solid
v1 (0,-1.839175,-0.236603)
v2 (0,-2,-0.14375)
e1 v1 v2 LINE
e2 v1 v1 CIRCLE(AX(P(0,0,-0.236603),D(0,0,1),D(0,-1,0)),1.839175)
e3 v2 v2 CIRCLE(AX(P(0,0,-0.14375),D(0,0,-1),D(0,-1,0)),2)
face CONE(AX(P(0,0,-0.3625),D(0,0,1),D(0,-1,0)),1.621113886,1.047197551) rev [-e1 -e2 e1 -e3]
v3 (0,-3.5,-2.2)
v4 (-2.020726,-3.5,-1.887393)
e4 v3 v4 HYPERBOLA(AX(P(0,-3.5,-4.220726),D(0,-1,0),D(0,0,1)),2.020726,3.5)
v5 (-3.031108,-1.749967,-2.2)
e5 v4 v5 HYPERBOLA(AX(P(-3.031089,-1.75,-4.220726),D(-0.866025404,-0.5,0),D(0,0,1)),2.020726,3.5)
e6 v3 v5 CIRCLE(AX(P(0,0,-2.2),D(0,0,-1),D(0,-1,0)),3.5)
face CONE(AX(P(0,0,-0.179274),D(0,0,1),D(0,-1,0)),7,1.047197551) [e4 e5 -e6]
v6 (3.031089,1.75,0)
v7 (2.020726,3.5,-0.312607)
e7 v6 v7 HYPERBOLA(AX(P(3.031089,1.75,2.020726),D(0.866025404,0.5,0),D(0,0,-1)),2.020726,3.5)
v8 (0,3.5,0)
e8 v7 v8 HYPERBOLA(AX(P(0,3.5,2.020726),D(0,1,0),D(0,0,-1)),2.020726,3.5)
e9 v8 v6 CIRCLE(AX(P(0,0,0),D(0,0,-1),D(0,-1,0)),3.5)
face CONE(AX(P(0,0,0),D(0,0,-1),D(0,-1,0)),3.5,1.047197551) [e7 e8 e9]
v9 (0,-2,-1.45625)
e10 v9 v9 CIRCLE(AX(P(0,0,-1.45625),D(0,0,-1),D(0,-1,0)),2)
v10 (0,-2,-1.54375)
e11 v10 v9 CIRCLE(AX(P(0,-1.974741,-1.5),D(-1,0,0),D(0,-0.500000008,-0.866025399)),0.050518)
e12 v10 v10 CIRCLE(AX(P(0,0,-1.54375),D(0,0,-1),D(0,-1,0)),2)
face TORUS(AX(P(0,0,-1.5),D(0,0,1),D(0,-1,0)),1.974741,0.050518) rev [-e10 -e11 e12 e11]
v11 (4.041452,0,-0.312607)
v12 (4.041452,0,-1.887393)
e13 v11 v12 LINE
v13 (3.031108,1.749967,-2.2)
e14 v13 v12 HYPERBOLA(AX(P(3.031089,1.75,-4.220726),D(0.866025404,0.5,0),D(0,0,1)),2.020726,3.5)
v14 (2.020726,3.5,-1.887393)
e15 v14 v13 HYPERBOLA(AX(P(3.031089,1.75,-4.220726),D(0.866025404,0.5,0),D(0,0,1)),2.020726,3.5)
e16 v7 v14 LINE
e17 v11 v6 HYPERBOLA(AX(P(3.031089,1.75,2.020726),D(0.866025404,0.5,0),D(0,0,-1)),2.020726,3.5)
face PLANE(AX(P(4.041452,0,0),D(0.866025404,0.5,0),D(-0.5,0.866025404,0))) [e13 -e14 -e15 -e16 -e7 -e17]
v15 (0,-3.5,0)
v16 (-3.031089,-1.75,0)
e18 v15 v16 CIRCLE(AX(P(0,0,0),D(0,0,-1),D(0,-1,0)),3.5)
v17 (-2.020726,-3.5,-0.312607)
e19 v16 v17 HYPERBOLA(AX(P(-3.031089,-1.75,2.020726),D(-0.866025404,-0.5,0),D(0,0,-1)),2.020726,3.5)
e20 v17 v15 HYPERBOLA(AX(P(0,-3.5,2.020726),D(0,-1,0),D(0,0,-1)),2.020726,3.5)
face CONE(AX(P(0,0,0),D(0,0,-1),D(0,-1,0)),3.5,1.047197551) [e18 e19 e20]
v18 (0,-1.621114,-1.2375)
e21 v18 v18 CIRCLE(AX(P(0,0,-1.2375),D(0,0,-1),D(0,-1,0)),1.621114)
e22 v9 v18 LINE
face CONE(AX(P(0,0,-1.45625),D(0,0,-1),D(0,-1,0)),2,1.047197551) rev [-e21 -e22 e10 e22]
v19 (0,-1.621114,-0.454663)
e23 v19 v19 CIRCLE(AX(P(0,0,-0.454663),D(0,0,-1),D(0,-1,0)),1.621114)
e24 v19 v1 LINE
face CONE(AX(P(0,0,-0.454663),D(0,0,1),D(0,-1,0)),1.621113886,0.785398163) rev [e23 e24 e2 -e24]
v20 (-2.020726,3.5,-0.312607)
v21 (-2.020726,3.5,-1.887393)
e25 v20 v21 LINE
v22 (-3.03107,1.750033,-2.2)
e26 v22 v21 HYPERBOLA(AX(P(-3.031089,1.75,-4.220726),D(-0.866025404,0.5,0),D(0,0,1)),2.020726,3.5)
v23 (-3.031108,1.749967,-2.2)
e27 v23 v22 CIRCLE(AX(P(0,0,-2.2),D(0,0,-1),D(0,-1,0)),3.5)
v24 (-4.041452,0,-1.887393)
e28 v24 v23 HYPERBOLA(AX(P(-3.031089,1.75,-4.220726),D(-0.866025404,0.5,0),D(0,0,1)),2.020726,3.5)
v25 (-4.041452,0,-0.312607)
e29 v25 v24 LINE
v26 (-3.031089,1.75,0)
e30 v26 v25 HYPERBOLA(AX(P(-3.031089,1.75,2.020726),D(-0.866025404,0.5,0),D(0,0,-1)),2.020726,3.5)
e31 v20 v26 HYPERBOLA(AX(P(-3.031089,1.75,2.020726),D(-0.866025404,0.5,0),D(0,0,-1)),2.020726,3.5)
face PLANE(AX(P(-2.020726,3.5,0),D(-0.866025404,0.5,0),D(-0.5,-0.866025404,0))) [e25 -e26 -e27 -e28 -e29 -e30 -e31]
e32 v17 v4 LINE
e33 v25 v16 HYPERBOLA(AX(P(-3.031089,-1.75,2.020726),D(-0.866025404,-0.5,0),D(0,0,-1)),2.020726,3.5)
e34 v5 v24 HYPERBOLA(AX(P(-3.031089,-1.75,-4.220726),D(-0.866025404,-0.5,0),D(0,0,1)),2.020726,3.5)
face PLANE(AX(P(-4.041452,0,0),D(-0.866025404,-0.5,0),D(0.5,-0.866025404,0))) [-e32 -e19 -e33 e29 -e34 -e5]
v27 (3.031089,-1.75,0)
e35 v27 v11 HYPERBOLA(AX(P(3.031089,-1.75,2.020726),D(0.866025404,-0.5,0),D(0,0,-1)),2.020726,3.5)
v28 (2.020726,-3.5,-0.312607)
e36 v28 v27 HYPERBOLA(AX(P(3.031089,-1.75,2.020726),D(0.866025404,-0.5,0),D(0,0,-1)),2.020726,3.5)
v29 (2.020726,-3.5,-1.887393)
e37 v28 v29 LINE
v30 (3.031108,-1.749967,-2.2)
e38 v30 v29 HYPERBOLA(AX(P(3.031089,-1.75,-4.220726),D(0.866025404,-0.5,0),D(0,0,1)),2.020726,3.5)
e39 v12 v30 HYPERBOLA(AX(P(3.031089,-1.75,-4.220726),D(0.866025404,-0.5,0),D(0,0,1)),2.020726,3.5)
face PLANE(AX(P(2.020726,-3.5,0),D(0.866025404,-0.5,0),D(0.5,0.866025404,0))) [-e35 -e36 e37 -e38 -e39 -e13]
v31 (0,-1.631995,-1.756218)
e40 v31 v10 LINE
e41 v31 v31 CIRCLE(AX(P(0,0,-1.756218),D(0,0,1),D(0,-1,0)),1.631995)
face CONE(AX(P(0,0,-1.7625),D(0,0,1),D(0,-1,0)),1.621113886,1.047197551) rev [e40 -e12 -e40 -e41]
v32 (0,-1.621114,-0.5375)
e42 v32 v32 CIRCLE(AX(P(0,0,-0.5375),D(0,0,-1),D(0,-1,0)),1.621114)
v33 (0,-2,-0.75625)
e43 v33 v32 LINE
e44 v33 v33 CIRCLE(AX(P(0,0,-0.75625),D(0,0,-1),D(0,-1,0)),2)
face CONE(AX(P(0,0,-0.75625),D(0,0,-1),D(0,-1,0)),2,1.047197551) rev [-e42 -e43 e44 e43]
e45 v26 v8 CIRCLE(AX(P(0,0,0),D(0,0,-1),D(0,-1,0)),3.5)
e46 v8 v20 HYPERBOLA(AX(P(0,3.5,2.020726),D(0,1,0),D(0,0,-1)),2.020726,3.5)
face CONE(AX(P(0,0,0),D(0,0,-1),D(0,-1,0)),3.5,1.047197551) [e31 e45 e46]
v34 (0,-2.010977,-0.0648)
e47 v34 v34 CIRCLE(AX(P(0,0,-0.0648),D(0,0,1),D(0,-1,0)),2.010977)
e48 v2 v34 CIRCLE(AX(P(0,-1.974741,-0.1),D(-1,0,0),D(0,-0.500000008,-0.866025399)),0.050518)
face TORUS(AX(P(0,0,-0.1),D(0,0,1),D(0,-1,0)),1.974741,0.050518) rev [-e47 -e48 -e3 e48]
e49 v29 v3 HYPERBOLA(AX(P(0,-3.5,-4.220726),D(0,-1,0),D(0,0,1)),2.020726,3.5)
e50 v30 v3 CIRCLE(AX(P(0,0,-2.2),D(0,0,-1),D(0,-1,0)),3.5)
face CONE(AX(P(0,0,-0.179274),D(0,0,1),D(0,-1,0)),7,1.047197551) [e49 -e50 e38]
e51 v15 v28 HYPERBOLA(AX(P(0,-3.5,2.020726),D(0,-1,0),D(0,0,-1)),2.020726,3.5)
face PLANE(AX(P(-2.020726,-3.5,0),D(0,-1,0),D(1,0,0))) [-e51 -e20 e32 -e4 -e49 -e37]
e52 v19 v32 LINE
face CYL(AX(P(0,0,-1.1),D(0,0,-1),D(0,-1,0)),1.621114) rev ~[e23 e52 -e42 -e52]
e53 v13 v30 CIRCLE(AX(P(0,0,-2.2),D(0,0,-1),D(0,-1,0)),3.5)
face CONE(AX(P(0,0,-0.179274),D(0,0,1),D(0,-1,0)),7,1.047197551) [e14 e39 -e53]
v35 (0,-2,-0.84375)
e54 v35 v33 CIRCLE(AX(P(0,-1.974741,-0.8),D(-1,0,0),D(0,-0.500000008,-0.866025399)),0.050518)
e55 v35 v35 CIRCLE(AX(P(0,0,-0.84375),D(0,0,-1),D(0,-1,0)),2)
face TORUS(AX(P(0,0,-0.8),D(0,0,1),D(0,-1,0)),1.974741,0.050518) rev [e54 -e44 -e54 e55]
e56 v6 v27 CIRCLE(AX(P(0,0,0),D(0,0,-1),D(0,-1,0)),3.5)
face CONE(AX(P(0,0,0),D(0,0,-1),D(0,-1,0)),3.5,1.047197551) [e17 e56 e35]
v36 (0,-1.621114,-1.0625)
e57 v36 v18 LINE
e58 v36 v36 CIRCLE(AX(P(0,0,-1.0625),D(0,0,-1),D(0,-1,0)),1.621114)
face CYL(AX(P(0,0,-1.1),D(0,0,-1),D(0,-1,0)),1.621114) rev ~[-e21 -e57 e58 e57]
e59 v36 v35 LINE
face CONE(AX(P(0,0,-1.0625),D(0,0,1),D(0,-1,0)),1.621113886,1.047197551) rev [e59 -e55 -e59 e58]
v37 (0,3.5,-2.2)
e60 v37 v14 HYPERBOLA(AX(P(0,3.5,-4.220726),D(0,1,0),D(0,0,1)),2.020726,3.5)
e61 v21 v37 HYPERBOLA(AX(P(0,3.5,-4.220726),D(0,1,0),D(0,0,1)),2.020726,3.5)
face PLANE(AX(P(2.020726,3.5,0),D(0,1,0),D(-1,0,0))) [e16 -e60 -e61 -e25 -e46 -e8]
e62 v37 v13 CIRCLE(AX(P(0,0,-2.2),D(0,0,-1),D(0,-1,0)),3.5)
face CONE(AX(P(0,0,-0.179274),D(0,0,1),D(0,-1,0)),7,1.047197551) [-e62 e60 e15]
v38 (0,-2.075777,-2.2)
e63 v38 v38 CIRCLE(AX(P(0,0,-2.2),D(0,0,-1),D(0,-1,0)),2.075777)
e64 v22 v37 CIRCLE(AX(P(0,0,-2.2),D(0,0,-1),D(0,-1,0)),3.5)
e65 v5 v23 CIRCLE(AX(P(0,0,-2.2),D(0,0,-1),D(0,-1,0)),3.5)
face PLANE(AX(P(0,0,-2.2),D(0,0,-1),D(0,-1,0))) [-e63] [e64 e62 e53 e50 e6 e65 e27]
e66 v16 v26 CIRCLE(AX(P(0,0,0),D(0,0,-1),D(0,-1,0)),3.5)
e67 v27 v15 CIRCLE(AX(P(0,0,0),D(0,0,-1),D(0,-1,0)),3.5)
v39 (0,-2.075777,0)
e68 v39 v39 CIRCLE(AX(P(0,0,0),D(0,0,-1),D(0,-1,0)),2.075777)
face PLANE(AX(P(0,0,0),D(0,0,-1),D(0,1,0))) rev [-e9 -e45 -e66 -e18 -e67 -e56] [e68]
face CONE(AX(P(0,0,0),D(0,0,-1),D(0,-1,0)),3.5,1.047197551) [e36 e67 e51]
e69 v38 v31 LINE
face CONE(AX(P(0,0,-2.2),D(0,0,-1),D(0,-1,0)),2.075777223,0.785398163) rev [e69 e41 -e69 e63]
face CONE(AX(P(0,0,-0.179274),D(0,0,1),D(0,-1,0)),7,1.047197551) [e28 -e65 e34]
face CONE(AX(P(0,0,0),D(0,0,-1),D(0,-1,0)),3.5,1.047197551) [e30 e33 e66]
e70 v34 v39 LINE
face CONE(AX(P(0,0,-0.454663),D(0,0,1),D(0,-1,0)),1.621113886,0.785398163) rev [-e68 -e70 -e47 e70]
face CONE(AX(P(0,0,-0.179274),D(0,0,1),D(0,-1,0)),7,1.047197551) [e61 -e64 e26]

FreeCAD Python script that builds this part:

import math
import FreeCAD as App
import Part
import Sketcher
Q = App.Units.Quantity


def add_polygon(sketch, points):
    """Adds a closed chain of lines whose ends are joined by coincident constraints."""
    first, n = sketch.GeometryCount, len(points)
    for a, b in zip(points, points[1:] + points[:1]):
        sketch.addGeometry(Part.LineSegment(App.Vector(*a, 0), App.Vector(*b, 0)), False)
    for i in range(n):
        sketch.addConstraint(Sketcher.Constraint("Coincident", first + i, 2, first + (i + 1) % n, 1))

doc = App.newDocument("Part")
body = doc.addObject("PartDesign::Body", "Body")

# Sketch on YZ plane
sketch1 = body.newObject("Sketcher::SketchObject", "Sketch")
sketch1.AttachmentSupport = (doc.getObject("YZ_Plane"), [""])
sketch1.MapMode = "FlatFace"
add_polygon(sketch1, [(7, 0), (0, 0), (0, -2.2), (7, -2.2)])  # lines 0-3
sketch1.addConstraint(Sketcher.Constraint("Horizontal", 0))
sketch1.addConstraint(Sketcher.Constraint("Vertical", 1))
sketch1.addConstraint(Sketcher.Constraint("Horizontal", 2))
sketch1.addConstraint(Sketcher.Constraint("Vertical", 3))
sketch1.addConstraint(Sketcher.Constraint("Coincident", 0, 2, -1, 1))
sketch1.addConstraint(Sketcher.Constraint("DistanceX", 0, 2, 0, 1, 7.0))
sketch1.addConstraint(Sketcher.Constraint("DistanceY", 1, 2, 1, 1, 2.2))
revolution = body.newObject("PartDesign::Revolution", "Revolution")
revolution.Profile = sketch1
revolution.ReferenceAxis = (sketch1, ["V_Axis"])
revolution.Angle = 360

# Sketch on YZ plane
sketch2 = body.newObject("Sketcher::SketchObject", "Sketch001")
sketch2.AttachmentSupport = (doc.getObject("YZ_Plane"), [""])
sketch2.MapMode = "FlatFace"
add_polygon(sketch2, [(-7, 0), (-7, -2), (-3.5, 0)])  # lines 0-2
sketch2.addConstraint(Sketcher.Constraint("Vertical", 0))
sketch2.addConstraint(Sketcher.Constraint("Horizontal", 2))
sketch2.addConstraint(Sketcher.Constraint("PointOnObject", 1, 2, -1))
sketch2.addConstraint(Sketcher.Constraint("Angle", 1, Q("30 deg")))
sketch2.addConstraint(Sketcher.Constraint("DistanceX", 2, 2, 2, 1, 3.5))
sketch2.addConstraint(Sketcher.Constraint("DistanceX", 0, 2, -1, 1, 7.0))
groove = body.newObject("PartDesign::Groove", "Groove")
groove.Profile = sketch2
groove.ReferenceAxis = (sketch2, ["V_Axis"])
groove.Angle = 360

# Sketch on YZ plane
sketch3 = body.newObject("Sketcher::SketchObject", "Sketch002")
sketch3.AttachmentSupport = (doc.getObject("YZ_Plane"), [""])
sketch3.MapMode = "FlatFace"
add_polygon(sketch3, [(-7, -0.2), (-7, -2.2), (-3.5, -2.2)])  # lines 0-2
sketch3.addConstraint(Sketcher.Constraint("Vertical", 0))
sketch3.addConstraint(Sketcher.Constraint("Horizontal", 1))
sketch3.addConstraint(Sketcher.Constraint("Angle", 2, Q("150 deg")))
sketch3.addConstraint(Sketcher.Constraint("DistanceX", 1, 1, 1, 2, 3.5))
sketch3.addConstraint(Sketcher.Constraint("DistanceX", 0, 2, -1, 1, 7.0))
sketch3.addConstraint(Sketcher.Constraint("DistanceY", 0, 2, -1, 1, 2.2))
groove2 = body.newObject("PartDesign::Groove", "Groove001")
groove2.Profile = sketch3
groove2.ReferenceAxis = (sketch3, ["V_Axis"])
groove2.Angle = 360

# Sketch on YZ plane
sketch4 = body.newObject("Sketcher::SketchObject", "Sketch003")
sketch4.AttachmentSupport = (doc.getObject("YZ_Plane"), [""])
sketch4.MapMode = "FlatFace"
add_polygon(sketch4, [(2, 0), (0, 0), (0, -2.2), (2, -2.2)])  # lines 0-3
sketch4.addConstraint(Sketcher.Constraint("Horizontal", 0))
sketch4.addConstraint(Sketcher.Constraint("Vertical", 1))
sketch4.addConstraint(Sketcher.Constraint("Horizontal", 2))
sketch4.addConstraint(Sketcher.Constraint("Vertical", 3))
sketch4.addConstraint(Sketcher.Constraint("Coincident", 0, 2, -1, 1))
sketch4.addConstraint(Sketcher.Constraint("DistanceX", 0, 2, 0, 1, 2.0))
sketch4.addConstraint(Sketcher.Constraint("DistanceY", 1, 2, 1, 1, 2.2))
groove3 = body.newObject("PartDesign::Groove", "Groove002")
groove3.Profile = sketch4
groove3.ReferenceAxis = (sketch4, ["V_Axis"])
groove3.Angle = 360

# Sketch on YZ plane
sketch5 = body.newObject("Sketcher::SketchObject", "Sketch004")
sketch5.AttachmentSupport = (doc.getObject("YZ_Plane"), [""])
sketch5.MapMode = "FlatFace"
add_polygon(sketch5, [(-1.62, 0), (-2.08, 0), (-2.08, -2.2), (-1.62, -2.2)])  # lines 0-3
sketch5.addConstraint(Sketcher.Constraint("Horizontal", 0))
sketch5.addConstraint(Sketcher.Constraint("Vertical", 1))
sketch5.addConstraint(Sketcher.Constraint("Horizontal", 2))
sketch5.addConstraint(Sketcher.Constraint("Vertical", 3))
sketch5.addConstraint(Sketcher.Constraint("PointOnObject", 0, 2, -1))
sketch5.addConstraint(Sketcher.Constraint("DistanceY", 1, 2, 1, 1, 2.2))
sketch5.addConstraint(Sketcher.Constraint("DistanceX", 0, 2, 0, 1, 0.454663))
sketch5.addConstraint(Sketcher.Constraint("DistanceX", 0, 2, -1, 1, 2.075777))
revolution2 = body.newObject("PartDesign::Revolution", "Revolution001")
revolution2.Profile = sketch5
revolution2.ReferenceAxis = (sketch5, ["V_Axis"])
revolution2.Angle = 360

# Sketch on YZ plane
sketch6 = body.newObject("Sketcher::SketchObject", "Sketch005")
sketch6.AttachmentSupport = (doc.getObject("YZ_Plane"), [""])
sketch6.MapMode = "FlatFace"
sketch6.addGeometry(Part.LineSegment(App.Vector(-1.62, -1.94, 0), App.Vector(-2, -2.16, 0)), False)
sketch6.addGeometry(Part.ArcOfCircle(Part.Circle(App.Vector(-1.97, -2.2, 0), App.Vector(0, 0, 1), 0.05), math.radians(120), math.radians(240)), False)
sketch6.addGeometry(Part.LineSegment(App.Vector(-2, -2.24, 0), App.Vector(-1.62, -2.46, 0)), False)
sketch6.addGeometry(Part.LineSegment(App.Vector(-1.62, -2.46, 0), App.Vector(-1.62, -1.94, 0)), False)
sketch6.addConstraint(Sketcher.Constraint("Tangent", 0, 2, 1, 1))
sketch6.addConstraint(Sketcher.Constraint("Tangent", 1, 2, 2, 1))
sketch6.addConstraint(Sketcher.Constraint("Coincident", 2, 2, 3, 1))
sketch6.addConstraint(Sketcher.Constraint("Coincident", 3, 2, 0, 1))
sketch6.addConstraint(Sketcher.Constraint("Vertical", 3))
sketch6.addConstraint(Sketcher.Constraint("Vertical", 0, 2, 1, 2))
sketch6.addConstraint(Sketcher.Constraint("Angle", 0, Q("-150 deg")))
sketch6.addConstraint(Sketcher.Constraint("DistanceX", 0, 2, -1, 1, 2.0))
sketch6.addConstraint(Sketcher.Constraint("DistanceY", 1, 3, -1, 1, 2.2))
sketch6.addConstraint(Sketcher.Constraint("DistanceY", 3, 1, 3, 2, 0.525))
sketch6.addConstraint(Sketcher.Constraint("Radius", 1, 0.050518))
groove4 = body.newObject("PartDesign::Groove", "Groove003")
groove4.Profile = sketch6
groove4.ReferenceAxis = (sketch6, ["V_Axis"])
groove4.Angle = 360
doc.recompute()

linearpattern = body.newObject("PartDesign::LinearPattern", "LinearPattern")
linearpattern.Originals = [groove4]
linearpattern.Direction = (doc.getObject("Z_Axis"), [""])
linearpattern.Mode = "offset"
linearpattern.Offset = 0.7
linearpattern.Occurrences = 4
body.Tip = linearpattern

# Sketch on YZ plane
sketch7 = body.newObject("Sketcher::SketchObject", "Sketch006")
sketch7.AttachmentSupport = (doc.getObject("YZ_Plane"), [""])
sketch7.MapMode = "FlatFace"
add_polygon(sketch7, [(-1.62, -0.45), (-1.62, 0), (-2.08, 0)])  # lines 0-2
sketch7.addConstraint(Sketcher.Constraint("Vertical", 0))
sketch7.addConstraint(Sketcher.Constraint("Horizontal", 1))
sketch7.addConstraint(Sketcher.Constraint("PointOnObject", 0, 2, -1))
sketch7.addConstraint(Sketcher.Constraint("Equal", 1, 0))
sketch7.addConstraint(Sketcher.Constraint("Distance", 2, 0.642991))
sketch7.addConstraint(Sketcher.Constraint("DistanceX", 0, 2, -1, 1, 1.621114))
groove5 = body.newObject("PartDesign::Groove", "Groove004")
groove5.Profile = sketch7
groove5.ReferenceAxis = (sketch7, ["V_Axis"])
groove5.Angle = 360

# Sketch on YZ plane
sketch8 = body.newObject("Sketcher::SketchObject", "Sketch007")
sketch8.AttachmentSupport = (doc.getObject("YZ_Plane"), [""])
sketch8.MapMode = "FlatFace"
add_polygon(sketch8, [(-2.08, -2.2), (-1.62, -2.2), (-1.62, -1.75)])  # lines 0-2
sketch8.addConstraint(Sketcher.Constraint("Horizontal", 0))
sketch8.addConstraint(Sketcher.Constraint("Vertical", 1))
sketch8.addConstraint(Sketcher.Constraint("Equal", 0, 1))
sketch8.addConstraint(Sketcher.Constraint("DistanceY", 0, 2, -1, 1, 2.2))
sketch8.addConstraint(Sketcher.Constraint("Distance", 2, 0.642991))
sketch8.addConstraint(Sketcher.Constraint("DistanceX", 0, 2, -1, 1, 1.621114))
groove6 = body.newObject("PartDesign::Groove", "Groove005")
groove6.Profile = sketch8
groove6.ReferenceAxis = (sketch8, ["V_Axis"])
groove6.Angle = 360

# Sketch on XY plane
sketch9 = body.newObject("Sketcher::SketchObject", "Sketch008")
sketch9.AttachmentSupport = (doc.getObject("XY_Plane"), [""])
sketch9.MapMode = "FlatFace"
add_polygon(sketch9, [(-8, 8), (-8, -8), (8, -8), (8, 8)])  # lines 0-3
add_polygon(sketch9, [(2, 3.5), (4, 0), (2, -3.5), (-2, -3.5), (-4, 0), (-2, 3.5)])  # lines 4-9
sketch9.addConstraint(Sketcher.Constraint("Vertical", 0))
sketch9.addConstraint(Sketcher.Constraint("Horizontal", 1))
sketch9.addConstraint(Sketcher.Constraint("Vertical", 2))
sketch9.addConstraint(Sketcher.Constraint("Horizontal", 3))
sketch9.addConstraint(Sketcher.Constraint("Horizontal", 6))
sketch9.addConstraint(Sketcher.Constraint("Horizontal", 9))
sketch9.addConstraint(Sketcher.Constraint("Symmetric", 0, 2, 2, 2, -1, 1))
sketch9.addConstraint(Sketcher.Constraint("Symmetric", 4, 2, 7, 2, -1, 1))
sketch9.addConstraint(Sketcher.Constraint("Symmetric", 5, 2, 8, 2, -1, 1))
sketch9.addConstraint(Sketcher.Constraint("PointOnObject", 4, 2, -1))
sketch9.addConstraint(Sketcher.Constraint("Parallel", 4, 7))
sketch9.addConstraint(Sketcher.Constraint("Vertical", 6, 2, 8, 2))
sketch9.addConstraint(Sketcher.Constraint("Equal", 3, 0))
sketch9.addConstraint(Sketcher.Constraint("Angle", 4, Q("-60 deg")))
sketch9.addConstraint(Sketcher.Constraint("DistanceX", 1, 1, 1, 2, 15.9))
sketch9.addConstraint(Sketcher.Constraint("DistanceY", 6, 2, 8, 2, 7.0))
sketch9.addConstraint(Sketcher.Constraint("DistanceX", 6, 2, 6, 1, 4.041452))
pocket1 = body.newObject("PartDesign::Pocket", "Pocket")
pocket1.Profile = sketch9
pocket1.Type = "ThroughAll"

doc.recompute()
